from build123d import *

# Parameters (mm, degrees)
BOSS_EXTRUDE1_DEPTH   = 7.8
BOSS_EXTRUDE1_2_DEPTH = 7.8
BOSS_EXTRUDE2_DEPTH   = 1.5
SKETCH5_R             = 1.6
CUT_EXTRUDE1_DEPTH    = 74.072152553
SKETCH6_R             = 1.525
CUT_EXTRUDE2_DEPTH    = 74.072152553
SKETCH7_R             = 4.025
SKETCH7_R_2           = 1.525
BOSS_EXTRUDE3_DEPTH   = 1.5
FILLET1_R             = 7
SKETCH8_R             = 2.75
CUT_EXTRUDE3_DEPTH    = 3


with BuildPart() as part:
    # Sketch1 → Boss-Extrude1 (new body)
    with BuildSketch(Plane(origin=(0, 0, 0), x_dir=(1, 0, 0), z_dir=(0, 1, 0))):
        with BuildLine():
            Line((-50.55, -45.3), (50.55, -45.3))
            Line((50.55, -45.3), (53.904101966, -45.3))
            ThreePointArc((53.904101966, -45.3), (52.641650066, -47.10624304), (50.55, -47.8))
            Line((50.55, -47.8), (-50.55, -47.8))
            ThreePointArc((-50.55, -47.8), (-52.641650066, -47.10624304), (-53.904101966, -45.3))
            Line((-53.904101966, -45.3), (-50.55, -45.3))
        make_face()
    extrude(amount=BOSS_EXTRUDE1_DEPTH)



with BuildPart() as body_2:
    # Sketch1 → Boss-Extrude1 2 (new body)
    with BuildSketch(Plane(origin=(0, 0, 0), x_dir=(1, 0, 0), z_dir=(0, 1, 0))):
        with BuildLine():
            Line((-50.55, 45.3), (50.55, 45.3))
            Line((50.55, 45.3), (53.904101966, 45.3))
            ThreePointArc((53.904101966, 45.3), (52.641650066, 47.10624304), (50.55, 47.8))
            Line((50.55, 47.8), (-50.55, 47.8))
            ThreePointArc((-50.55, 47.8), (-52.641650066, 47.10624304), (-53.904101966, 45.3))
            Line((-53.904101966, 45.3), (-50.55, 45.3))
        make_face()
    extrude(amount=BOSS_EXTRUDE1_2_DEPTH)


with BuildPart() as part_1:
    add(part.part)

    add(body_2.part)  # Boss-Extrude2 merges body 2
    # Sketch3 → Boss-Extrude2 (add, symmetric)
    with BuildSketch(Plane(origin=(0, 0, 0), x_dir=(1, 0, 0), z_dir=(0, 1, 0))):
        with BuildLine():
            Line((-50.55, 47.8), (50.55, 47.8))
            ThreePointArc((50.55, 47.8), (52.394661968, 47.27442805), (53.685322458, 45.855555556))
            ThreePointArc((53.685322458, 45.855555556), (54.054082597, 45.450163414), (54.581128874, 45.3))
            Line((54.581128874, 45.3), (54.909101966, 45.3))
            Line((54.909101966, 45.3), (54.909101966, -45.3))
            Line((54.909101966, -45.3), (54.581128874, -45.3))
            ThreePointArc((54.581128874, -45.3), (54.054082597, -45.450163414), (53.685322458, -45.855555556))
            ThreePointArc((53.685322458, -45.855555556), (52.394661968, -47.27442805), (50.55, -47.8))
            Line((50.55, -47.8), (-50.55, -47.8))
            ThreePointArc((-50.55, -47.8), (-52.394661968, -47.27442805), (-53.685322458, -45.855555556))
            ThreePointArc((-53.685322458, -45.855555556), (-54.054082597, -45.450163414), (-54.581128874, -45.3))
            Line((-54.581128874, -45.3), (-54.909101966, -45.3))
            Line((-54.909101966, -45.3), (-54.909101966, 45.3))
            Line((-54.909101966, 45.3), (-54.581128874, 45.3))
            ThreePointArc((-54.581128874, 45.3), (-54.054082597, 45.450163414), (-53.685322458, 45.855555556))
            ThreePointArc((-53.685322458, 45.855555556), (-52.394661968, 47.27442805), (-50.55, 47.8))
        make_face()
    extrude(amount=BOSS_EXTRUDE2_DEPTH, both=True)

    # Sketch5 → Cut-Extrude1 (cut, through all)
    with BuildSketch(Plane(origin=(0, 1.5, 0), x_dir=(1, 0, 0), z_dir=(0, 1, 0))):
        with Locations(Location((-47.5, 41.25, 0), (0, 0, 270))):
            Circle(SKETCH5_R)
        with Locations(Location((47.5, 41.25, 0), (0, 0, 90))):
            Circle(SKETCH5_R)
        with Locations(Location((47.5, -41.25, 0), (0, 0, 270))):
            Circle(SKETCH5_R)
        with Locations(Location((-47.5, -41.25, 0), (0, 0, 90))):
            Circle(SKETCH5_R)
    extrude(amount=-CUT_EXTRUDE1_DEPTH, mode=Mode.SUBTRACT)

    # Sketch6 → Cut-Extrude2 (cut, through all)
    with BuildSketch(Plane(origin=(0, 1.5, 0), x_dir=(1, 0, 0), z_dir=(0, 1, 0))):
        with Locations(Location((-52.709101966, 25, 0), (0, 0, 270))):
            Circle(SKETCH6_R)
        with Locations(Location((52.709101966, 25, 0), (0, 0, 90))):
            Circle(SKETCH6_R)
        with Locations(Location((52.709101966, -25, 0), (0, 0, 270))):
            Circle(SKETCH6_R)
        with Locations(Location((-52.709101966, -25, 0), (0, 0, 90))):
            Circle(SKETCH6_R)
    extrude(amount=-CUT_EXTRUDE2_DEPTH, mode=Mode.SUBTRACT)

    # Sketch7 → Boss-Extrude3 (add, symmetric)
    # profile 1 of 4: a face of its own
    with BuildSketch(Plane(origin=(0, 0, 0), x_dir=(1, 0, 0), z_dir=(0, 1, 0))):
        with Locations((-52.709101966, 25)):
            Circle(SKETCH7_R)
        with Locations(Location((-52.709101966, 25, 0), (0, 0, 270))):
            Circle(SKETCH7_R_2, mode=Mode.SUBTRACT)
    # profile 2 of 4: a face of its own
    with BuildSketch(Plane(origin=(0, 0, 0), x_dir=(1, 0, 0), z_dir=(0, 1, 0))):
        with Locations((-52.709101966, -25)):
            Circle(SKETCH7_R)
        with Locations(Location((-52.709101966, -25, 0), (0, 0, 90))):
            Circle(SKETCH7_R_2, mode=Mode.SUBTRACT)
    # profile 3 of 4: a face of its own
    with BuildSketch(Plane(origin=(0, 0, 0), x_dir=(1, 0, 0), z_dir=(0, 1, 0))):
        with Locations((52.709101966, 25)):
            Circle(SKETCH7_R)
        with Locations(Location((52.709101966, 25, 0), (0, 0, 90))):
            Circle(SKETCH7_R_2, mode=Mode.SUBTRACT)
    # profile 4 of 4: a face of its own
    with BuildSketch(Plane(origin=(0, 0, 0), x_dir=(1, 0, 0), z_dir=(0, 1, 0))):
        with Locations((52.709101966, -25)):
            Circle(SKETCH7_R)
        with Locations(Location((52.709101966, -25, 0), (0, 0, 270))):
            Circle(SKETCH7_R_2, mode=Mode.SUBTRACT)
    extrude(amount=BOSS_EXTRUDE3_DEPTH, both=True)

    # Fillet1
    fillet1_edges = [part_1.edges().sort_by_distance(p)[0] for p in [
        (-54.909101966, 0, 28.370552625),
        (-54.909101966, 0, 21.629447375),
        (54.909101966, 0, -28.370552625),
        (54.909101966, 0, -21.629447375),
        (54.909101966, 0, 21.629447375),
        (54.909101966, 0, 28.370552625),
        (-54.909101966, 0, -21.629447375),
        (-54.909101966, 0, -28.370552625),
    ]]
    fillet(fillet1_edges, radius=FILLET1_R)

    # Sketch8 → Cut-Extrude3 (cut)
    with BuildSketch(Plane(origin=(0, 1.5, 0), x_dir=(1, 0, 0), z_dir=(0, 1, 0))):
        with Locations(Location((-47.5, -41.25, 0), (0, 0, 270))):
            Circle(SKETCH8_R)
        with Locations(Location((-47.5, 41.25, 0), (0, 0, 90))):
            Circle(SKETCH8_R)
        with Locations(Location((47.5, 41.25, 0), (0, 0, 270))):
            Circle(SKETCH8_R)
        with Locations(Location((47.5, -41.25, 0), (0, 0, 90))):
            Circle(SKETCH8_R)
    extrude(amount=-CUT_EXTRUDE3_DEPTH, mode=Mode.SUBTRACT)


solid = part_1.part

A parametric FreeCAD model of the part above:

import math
import FreeCAD as App
import Part
import Sketcher
from FreeCAD import Vector


def edges_at(feature, points):
    """Names of the edges that pass closest to the given points."""
    edges = feature.Shape.Edges
    near = lambda p: min(range(len(edges)), key=lambda i: edges[i].distToShape(Part.Vertex(*p))[0])
    return sorted({f"Edge{near(p) + 1}" for p in points})

doc = App.newDocument("Part")
body = doc.addObject("PartDesign::Body", "Body")

# Sketch on XZ plane
sketch1 = body.newObject("Sketcher::SketchObject", "Sketch")
sketch1.AttachmentSupport = (doc.getObject("XZ_Plane"), [""])
sketch1.MapMode = "FlatFace"
sketch1.addGeometry(Part.ArcOfCircle(Part.Circle(Vector(50.55, 44.3, 0), Vector(0, 0, 1), 3.5), math.radians(16.60155), math.radians(90)), False)
sketch1.addGeometry(Part.LineSegment(Vector(53.904102, 45.3, 0), Vector(-53.904102, 45.3, 0)), False)
sketch1.addGeometry(Part.ArcOfCircle(Part.Circle(Vector(-50.55, 44.3, 0), Vector(0, 0, 1), 3.5), math.radians(90), math.radians(163.39845)), False)
sketch1.addGeometry(Part.LineSegment(Vector(-50.55, 47.8, 0), Vector(50.55, 47.8, 0)), False)
sketch1.addConstraint(Sketcher.Constraint("Coincident", 0, 1, 1, 1))
sketch1.addConstraint(Sketcher.Constraint("Coincident", 1, 2, 2, 2))
sketch1.addConstraint(Sketcher.Constraint("Tangent", 2, 1, 3, 1))
sketch1.addConstraint(Sketcher.Constraint("Tangent", 3, 2, 0, 2))
sketch1.addConstraint(Sketcher.Constraint("Horizontal", 1))
sketch1.addConstraint(Sketcher.Constraint("Horizontal", 3))
sketch1.addConstraint(Sketcher.Constraint("Equal", 0, 2))
sketch1.addConstraint(Sketcher.Constraint("Radius", 0, 3.5))
sketch1.addConstraint(Sketcher.Constraint("DistanceX", 3, 1, 3, 2, 101.1))
sketch1.addConstraint(Sketcher.Constraint("DistanceY", 0, 3, 0, 1, 1.0))
sketch1.addConstraint(Sketcher.Constraint("DistanceY", -1, 1, 0, 3, 44.3))
sketch1.addConstraint(Sketcher.Constraint("DistanceX", -1, 1, 0, 3, 50.55))
pad1 = body.newObject("PartDesign::Pad", "Pad")
pad1.Profile = sketch1
pad1.Length = 7.8
pad1.Reversed = True
body2 = doc.addObject("PartDesign::Body", "Body001")

# Sketch on XZ plane
sketch2 = body2.newObject("Sketcher::SketchObject", "Sketch001")
sketch2.AttachmentSupport = (doc.getObject("XZ_Plane001"), [""])
sketch2.MapMode = "FlatFace"
sketch2.addGeometry(Part.ArcOfCircle(Part.Circle(Vector(50.55, -44.3, 0), Vector(0, 0, 1), 3.5), math.radians(-90), math.radians(-16.60155)), False)
sketch2.addGeometry(Part.LineSegment(Vector(50.55, -47.8, 0), Vector(-50.55, -47.8, 0)), False)
sketch2.addGeometry(Part.ArcOfCircle(Part.Circle(Vector(-50.55, -44.3, 0), Vector(0, 0, 1), 3.5), math.radians(-163.39845), math.radians(-90)), False)
sketch2.addGeometry(Part.LineSegment(Vector(-53.904102, -45.3, 0), Vector(53.904102, -45.3, 0)), False)
sketch2.addConstraint(Sketcher.Constraint("Tangent", 0, 1, 1, 1))
sketch2.addConstraint(Sketcher.Constraint("Tangent", 1, 2, 2, 2))
sketch2.addConstraint(Sketcher.Constraint("Coincident", 2, 1, 3, 1))
sketch2.addConstraint(Sketcher.Constraint("Coincident", 3, 2, 0, 2))
sketch2.addConstraint(Sketcher.Constraint("Horizontal", 1))
sketch2.addConstraint(Sketcher.Constraint("Horizontal", 3))
sketch2.addConstraint(Sketcher.Constraint("Equal", 0, 2))
sketch2.addConstraint(Sketcher.Constraint("Radius", 0, 3.5))
sketch2.addConstraint(Sketcher.Constraint("DistanceX", 1, 2, 1, 1, 101.1))
sketch2.addConstraint(Sketcher.Constraint("DistanceY", 2, 1, 2, 3, 1.0))
sketch2.addConstraint(Sketcher.Constraint("DistanceY", 0, 3, -1, 1, 44.3))
sketch2.addConstraint(Sketcher.Constraint("DistanceX", -1, 1, 0, 3, 50.55))
pad2 = body2.newObject("PartDesign::Pad", "Pad001")
pad2.Profile = sketch2
pad2.Length = 7.8
pad2.Reversed = True
body.AllowCompound = True
doc.recompute()

boolean = body.newObject("PartDesign::Boolean", "Boolean")
boolean.Type = "Fuse"
boolean.addObjects([body2])

# Sketch on XZ plane
sketch3 = body.newObject("Sketcher::SketchObject", "Sketch002")
sketch3.AttachmentSupport = (doc.getObject("XZ_Plane"), [""])
sketch3.MapMode = "FlatFace"
sketch3.addGeometry(Part.LineSegment(Vector(50.55, -47.8, 0), Vector(-50.55, -47.8, 0)), False)
sketch3.addGeometry(Part.ArcOfCircle(Part.Circle(Vector(-50.55, -44.3, 0), Vector(0, 0, 1), 3.5), math.radians(-153.6122), math.radians(-90)), False)
sketch3.addGeometry(Part.ArcOfCircle(Part.Circle(Vector(-54.581129, -46.3, 0), Vector(0, 0, 1), 1), math.radians(26.3878), math.radians(90)), False)
sketch3.addGeometry(Part.LineSegment(Vector(-54.581129, -45.3, 0), Vector(-54.909102, -45.3, 0)), False)
sketch3.addGeometry(Part.LineSegment(Vector(-54.909102, -45.3, 0), Vector(-54.909102, 45.3, 0)), False)
sketch3.addGeometry(Part.LineSegment(Vector(-54.909102, 45.3, 0), Vector(-54.581129, 45.3, 0)), False)
sketch3.addGeometry(Part.ArcOfCircle(Part.Circle(Vector(-54.581129, 46.3, 0), Vector(0, 0, 1), 1), math.radians(-90), math.radians(-26.3878)), False)
sketch3.addGeometry(Part.ArcOfCircle(Part.Circle(Vector(-50.55, 44.3, 0), Vector(0, 0, 1), 3.5), math.radians(90), math.radians(153.6122)), False)
sketch3.addGeometry(Part.LineSegment(Vector(-50.55, 47.8, 0), Vector(50.55, 47.8, 0)), False)
sketch3.addGeometry(Part.ArcOfCircle(Part.Circle(Vector(50.55, 44.3, 0), Vector(0, 0, 1), 3.5), math.radians(26.3878), math.radians(90)), False)
sketch3.addGeometry(Part.ArcOfCircle(Part.Circle(Vector(54.581129, 46.3, 0), Vector(0, 0, 1), 1), math.radians(-153.6122), math.radians(-90)), False)
sketch3.addGeometry(Part.LineSegment(Vector(54.581129, 45.3, 0), Vector(54.909102, 45.3, 0)), False)
sketch3.addGeometry(Part.LineSegment(Vector(54.909102, 45.3, 0), Vector(54.909102, -45.3, 0)), False)
sketch3.addGeometry(Part.LineSegment(Vector(54.909102, -45.3, 0), Vector(54.581129, -45.3, 0)), False)
sketch3.addGeometry(Part.ArcOfCircle(Part.Circle(Vector(54.581129, -46.3, 0), Vector(0, 0, 1), 1), math.radians(90), math.radians(153.6122)), False)
sketch3.addGeometry(Part.ArcOfCircle(Part.Circle(Vector(50.55, -44.3, 0), Vector(0, 0, 1), 3.5), math.radians(-90), math.radians(-26.3878)), False)
sketch3.addConstraint(Sketcher.Constraint("Tangent", 0, 2, 1, 2))
sketch3.addConstraint(Sketcher.Constraint("Tangent", 1, 1, 2, 1))
sketch3.addConstraint(Sketcher.Constraint("Tangent", 2, 2, 3, 1))
sketch3.addConstraint(Sketcher.Constraint("Coincident", 3, 2, 4, 1))
sketch3.addConstraint(Sketcher.Constraint("Coincident", 4, 2, 5, 1))
sketch3.addConstraint(Sketcher.Constraint("Tangent", 5, 2, 6, 1))
sketch3.addConstraint(Sketcher.Constraint("Tangent", 6, 2, 7, 2))
sketch3.addConstraint(Sketcher.Constraint("Tangent", 7, 1, 8, 1))
sketch3.addConstraint(Sketcher.Constraint("Tangent", 8, 2, 9, 2))
sketch3.addConstraint(Sketcher.Constraint("Tangent", 9, 1, 10, 1))
sketch3.addConstraint(Sketcher.Constraint("Tangent", 10, 2, 11, 1))
sketch3.addConstraint(Sketcher.Constraint("Coincident", 11, 2, 12, 1))
sketch3.addConstraint(Sketcher.Constraint("Coincident", 12, 2, 13, 1))
sketch3.addConstraint(Sketcher.Constraint("Tangent", 13, 2, 14, 1))
sketch3.addConstraint(Sketcher.Constraint("Tangent", 14, 2, 15, 2))
sketch3.addConstraint(Sketcher.Constraint("Tangent", 15, 1, 0, 1))
sketch3.addConstraint(Sketcher.Constraint("Horizontal", 0))
sketch3.addConstraint(Sketcher.Constraint("Horizontal", 3))
sketch3.addConstraint(Sketcher.Constraint("Vertical", 4))
sketch3.addConstraint(Sketcher.Constraint("Horizontal", 5))
sketch3.addConstraint(Sketcher.Constraint("Horizontal", 8))
sketch3.addConstraint(Sketcher.Constraint("Horizontal", 11))
sketch3.addConstraint(Sketcher.Constraint("Vertical", 12))
sketch3.addConstraint(Sketcher.Constraint("Horizontal", 13))
sketch3.addConstraint(Sketcher.Constraint("Equal", 2, 6))
sketch3.addConstraint(Sketcher.Constraint("Equal", 1, 7))
sketch3.addConstraint(Sketcher.Constraint("Equal", 7, 9))
sketch3.addConstraint(Sketcher.Constraint("Equal", 6, 10))
sketch3.addConstraint(Sketcher.Constraint("Equal", 10, 14))
sketch3.addConstraint(Sketcher.Constraint("Equal", 9, 15))
sketch3.addConstraint(Sketcher.Constraint("Symmetric", 1, 3, 9, 3, -1, 1))
sketch3.addConstraint(Sketcher.Constraint("Symmetric", 6, 3, 14, 3, -1, 1))
sketch3.addConstraint(Sketcher.Constraint("Symmetric", 3, 2, 11, 2, -1, 1))
sketch3.addConstraint(Sketcher.Constraint("Symmetric", 6, 3, 10, 3, -2))
sketch3.addConstraint(Sketcher.Constraint("Radius", 2, 1.0))
sketch3.addConstraint(Sketcher.Constraint("Radius", 1, 3.5))
sketch3.addConstraint(Sketcher.Constraint("DistanceX", 0, 2, 0, 1, 101.1))
sketch3.addConstraint(Sketcher.Constraint("DistanceY", 4, 1, 4, 2, 90.6))
sketch3.addConstraint(Sketcher.Constraint("DistanceY", 2, 3, 1, 3, 2.0))
sketch3.addConstraint(Sketcher.Constraint("DistanceX", 3, 2, -1, 1, 54.909102))
pad3 = body.newObject("PartDesign::Pad", "Pad002")
pad3.Profile = sketch3
pad3.Length = 3
pad3.Midplane = True

# Sketch on XZ plane
sketch4 = body.newObject("Sketcher::SketchObject", "Sketch003")
sketch4.AttachmentSupport = (doc.getObject("XZ_Plane"), [""])
sketch4.MapMode = "FlatFace"
sketch4.AttachmentOffset = App.Placement(Vector(0, 0, -1.5), App.Rotation())
sketch4.addGeometry(Part.Circle(Vector(-47.5, -41.25, 0), Vector(0, 0, 1), 1.6), False)
sketch4.addGeometry(Part.Circle(Vector(47.5, -41.25, 0), Vector(0, 0, 1), 1.6), False)
sketch4.addGeometry(Part.Circle(Vector(47.5, 41.25, 0), Vector(0, 0, 1), 1.6), False)
sketch4.addGeometry(Part.Circle(Vector(-47.5, 41.25, 0), Vector(0, 0, 1), 1.6), False)
sketch4.addConstraint(Sketcher.Constraint("Equal", 0, 1))
sketch4.addConstraint(Sketcher.Constraint("Equal", 1, 2))
sketch4.addConstraint(Sketcher.Constraint("Equal", 2, 3))
sketch4.addConstraint(Sketcher.Constraint("Symmetric", 0, 3, 2, 3, -1, 1))
sketch4.addConstraint(Sketcher.Constraint("Symmetric", 1, 3, 3, 3, -1, 1))
sketch4.addConstraint(Sketcher.Constraint("Symmetric", 0, 3, 1, 3, -2))
sketch4.addConstraint(Sketcher.Constraint("Diameter", 0, 3.2))
sketch4.addConstraint(Sketcher.Constraint("DistanceX", 0, 3, 1, 3, 95.0))
sketch4.addConstraint(Sketcher.Constraint("DistanceY", 1, 3, 2, 3, 82.5))
pocket1 = body.newObject("PartDesign::Pocket", "Pocket")
pocket1.Profile = sketch4
pocket1.Type = "ThroughAll"
pocket1.Reversed = True

# Sketch on XZ plane
sketch5 = body.newObject("Sketcher::SketchObject", "Sketch004")
sketch5.AttachmentSupport = (doc.getObject("XZ_Plane"), [""])
sketch5.MapMode = "FlatFace"
sketch5.AttachmentOffset = App.Placement(Vector(0, 0, -1.5), App.Rotation())
sketch5.addGeometry(Part.Circle(Vector(-52.709102, -25, 0), Vector(0, 0, 1), 1.525), False)
sketch5.addGeometry(Part.Circle(Vector(52.709102, -25, 0), Vector(0, 0, 1), 1.525), False)
sketch5.addGeometry(Part.Circle(Vector(52.709102, 25, 0), Vector(0, 0, 1), 1.525), False)
sketch5.addGeometry(Part.Circle(Vector(-52.709102, 25, 0), Vector(0, 0, 1), 1.525), False)
sketch5.addConstraint(Sketcher.Constraint("Equal", 0, 1))
sketch5.addConstraint(Sketcher.Constraint("Equal", 1, 2))
sketch5.addConstraint(Sketcher.Constraint("Equal", 2, 3))
sketch5.addConstraint(Sketcher.Constraint("Symmetric", 0, 3, 2, 3, -1, 1))
sketch5.addConstraint(Sketcher.Constraint("Symmetric", 1, 3, 3, 3, -1, 1))
sketch5.addConstraint(Sketcher.Constraint("Symmetric", 0, 3, 1, 3, -2))
sketch5.addConstraint(Sketcher.Constraint("Diameter", 0, 3.05))
sketch5.addConstraint(Sketcher.Constraint("DistanceY", 0, 3, -1, 1, 25.0))
sketch5.addConstraint(Sketcher.Constraint("DistanceX", 0, 3, -1, 1, 52.709102))
pocket2 = body.newObject("PartDesign::Pocket", "Pocket001")
pocket2.Profile = sketch5
pocket2.Type = "ThroughAll"
pocket2.Reversed = True

# Sketch on XZ plane
sketch6 = body.newObject("Sketcher::SketchObject", "Sketch005")
sketch6.AttachmentSupport = (doc.getObject("XZ_Plane"), [""])
sketch6.MapMode = "FlatFace"
sketch6.addGeometry(Part.Circle(Vector(-52.709102, -25, 0), Vector(0, 0, 1), 4.025), False)
sketch6.addGeometry(Part.Circle(Vector(-52.709102, -25, 0), Vector(0, 0, 1), 1.525), False)
sketch6.addGeometry(Part.Circle(Vector(-52.709102, 25, 0), Vector(0, 0, 1), 4.025), False)
sketch6.addGeometry(Part.Circle(Vector(-52.709102, 25, 0), Vector(0, 0, 1), 1.525), False)
sketch6.addGeometry(Part.Circle(Vector(52.709102, -25, 0), Vector(0, 0, 1), 4.025), False)
sketch6.addGeometry(Part.Circle(Vector(52.709102, -25, 0), Vector(0, 0, 1), 1.525), False)
sketch6.addGeometry(Part.Circle(Vector(52.709102, 25, 0), Vector(0, 0, 1), 4.025), False)
sketch6.addGeometry(Part.Circle(Vector(52.709102, 25, 0), Vector(0, 0, 1), 1.525), False)
sketch6.addConstraint(Sketcher.Constraint("Coincident", 1, 3, 0, 3))
sketch6.addConstraint(Sketcher.Constraint("Coincident", 3, 3, 2, 3))
sketch6.addConstraint(Sketcher.Constraint("Coincident", 5, 3, 4, 3))
sketch6.addConstraint(Sketcher.Constraint("Coincident", 7, 3, 6, 3))
sketch6.addConstraint(Sketcher.Constraint("Equal", 0, 2))
sketch6.addConstraint(Sketcher.Constraint("Equal", 1, 3))
sketch6.addConstraint(Sketcher.Constraint("Equal", 2, 4))
sketch6.addConstraint(Sketcher.Constraint("Equal", 3, 5))
sketch6.addConstraint(Sketcher.Constraint("Equal", 4, 6))
sketch6.addConstraint(Sketcher.Constraint("Equal", 5, 7))
sketch6.addConstraint(Sketcher.Constraint("Symmetric", 2, 3, 4, 3, -1, 1))
sketch6.addConstraint(Sketcher.Constraint("Symmetric", 0, 3, 6, 3, -1, 1))
sketch6.addConstraint(Sketcher.Constraint("Symmetric", 0, 3, 4, 3, -2))
sketch6.addConstraint(Sketcher.Constraint("Diameter", 0, 8.05))
sketch6.addConstraint(Sketcher.Constraint("Diameter", 1, 3.05))
sketch6.addConstraint(Sketcher.Constraint("DistanceY", 0, 3, -1, 1, 25.0))
sketch6.addConstraint(Sketcher.Constraint("DistanceX", 0, 3, -1, 1, 52.709102))
pad4 = body.newObject("PartDesign::Pad", "Pad003")
pad4.Profile = sketch6
pad4.Length = 3
pad4.Midplane = True
doc.recompute()

fillet = body.newObject("PartDesign::Fillet", "Fillet")
fillet.Base = (pad4, edges_at(pad4, [
    (-54.909, 0, 28.371),
    (-54.909, 0, 21.629),
    (54.909, 0, -28.371),
    (54.909, 0, -21.629),
    (54.909, 0, 21.629),
    (54.909, 0, 28.371),
    (-54.909, 0, -21.629),
    (-54.909, 0, -28.371),
]))
fillet.Radius = 7

# Sketch on XZ plane
sketch7 = body.newObject("Sketcher::SketchObject", "Sketch006")
sketch7.AttachmentSupport = (doc.getObject("XZ_Plane"), [""])
sketch7.MapMode = "FlatFace"
sketch7.AttachmentOffset = App.Placement(Vector(0, 0, -1.5), App.Rotation())
sketch7.addGeometry(Part.Circle(Vector(-47.5, 41.25, 0), Vector(0, 0, 1), 2.75), False)
sketch7.addGeometry(Part.Circle(Vector(-47.5, -41.25, 0), Vector(0, 0, 1), 2.75), False)
sketch7.addGeometry(Part.Circle(Vector(47.5, -41.25, 0), Vector(0, 0, 1), 2.75), False)
sketch7.addGeometry(Part.Circle(Vector(47.5, 41.25, 0), Vector(0, 0, 1), 2.75), False)
sketch7.addConstraint(Sketcher.Constraint("Equal", 0, 1))
sketch7.addConstraint(Sketcher.Constraint("Equal", 1, 2))
sketch7.addConstraint(Sketcher.Constraint("Equal", 2, 3))
sketch7.addConstraint(Sketcher.Constraint("Symmetric", 0, 3, 2, 3, -1, 1))
sketch7.addConstraint(Sketcher.Constraint("Symmetric", 1, 3, 3, 3, -1, 1))
sketch7.addConstraint(Sketcher.Constraint("Symmetric", 1, 3, 2, 3, -2))
sketch7.addConstraint(Sketcher.Constraint("Diameter", 0, 5.5))
sketch7.addConstraint(Sketcher.Constraint("DistanceX", 1, 3, 2, 3, 95.0))
sketch7.addConstraint(Sketcher.Constraint("DistanceY", 1, 3, 0, 3, 82.5))
pocket3 = body.newObject("PartDesign::Pocket", "Pocket002")
pocket3.Profile = sketch7
pocket3.Length = 3
pocket3.Reversed = True

doc.recompute()
